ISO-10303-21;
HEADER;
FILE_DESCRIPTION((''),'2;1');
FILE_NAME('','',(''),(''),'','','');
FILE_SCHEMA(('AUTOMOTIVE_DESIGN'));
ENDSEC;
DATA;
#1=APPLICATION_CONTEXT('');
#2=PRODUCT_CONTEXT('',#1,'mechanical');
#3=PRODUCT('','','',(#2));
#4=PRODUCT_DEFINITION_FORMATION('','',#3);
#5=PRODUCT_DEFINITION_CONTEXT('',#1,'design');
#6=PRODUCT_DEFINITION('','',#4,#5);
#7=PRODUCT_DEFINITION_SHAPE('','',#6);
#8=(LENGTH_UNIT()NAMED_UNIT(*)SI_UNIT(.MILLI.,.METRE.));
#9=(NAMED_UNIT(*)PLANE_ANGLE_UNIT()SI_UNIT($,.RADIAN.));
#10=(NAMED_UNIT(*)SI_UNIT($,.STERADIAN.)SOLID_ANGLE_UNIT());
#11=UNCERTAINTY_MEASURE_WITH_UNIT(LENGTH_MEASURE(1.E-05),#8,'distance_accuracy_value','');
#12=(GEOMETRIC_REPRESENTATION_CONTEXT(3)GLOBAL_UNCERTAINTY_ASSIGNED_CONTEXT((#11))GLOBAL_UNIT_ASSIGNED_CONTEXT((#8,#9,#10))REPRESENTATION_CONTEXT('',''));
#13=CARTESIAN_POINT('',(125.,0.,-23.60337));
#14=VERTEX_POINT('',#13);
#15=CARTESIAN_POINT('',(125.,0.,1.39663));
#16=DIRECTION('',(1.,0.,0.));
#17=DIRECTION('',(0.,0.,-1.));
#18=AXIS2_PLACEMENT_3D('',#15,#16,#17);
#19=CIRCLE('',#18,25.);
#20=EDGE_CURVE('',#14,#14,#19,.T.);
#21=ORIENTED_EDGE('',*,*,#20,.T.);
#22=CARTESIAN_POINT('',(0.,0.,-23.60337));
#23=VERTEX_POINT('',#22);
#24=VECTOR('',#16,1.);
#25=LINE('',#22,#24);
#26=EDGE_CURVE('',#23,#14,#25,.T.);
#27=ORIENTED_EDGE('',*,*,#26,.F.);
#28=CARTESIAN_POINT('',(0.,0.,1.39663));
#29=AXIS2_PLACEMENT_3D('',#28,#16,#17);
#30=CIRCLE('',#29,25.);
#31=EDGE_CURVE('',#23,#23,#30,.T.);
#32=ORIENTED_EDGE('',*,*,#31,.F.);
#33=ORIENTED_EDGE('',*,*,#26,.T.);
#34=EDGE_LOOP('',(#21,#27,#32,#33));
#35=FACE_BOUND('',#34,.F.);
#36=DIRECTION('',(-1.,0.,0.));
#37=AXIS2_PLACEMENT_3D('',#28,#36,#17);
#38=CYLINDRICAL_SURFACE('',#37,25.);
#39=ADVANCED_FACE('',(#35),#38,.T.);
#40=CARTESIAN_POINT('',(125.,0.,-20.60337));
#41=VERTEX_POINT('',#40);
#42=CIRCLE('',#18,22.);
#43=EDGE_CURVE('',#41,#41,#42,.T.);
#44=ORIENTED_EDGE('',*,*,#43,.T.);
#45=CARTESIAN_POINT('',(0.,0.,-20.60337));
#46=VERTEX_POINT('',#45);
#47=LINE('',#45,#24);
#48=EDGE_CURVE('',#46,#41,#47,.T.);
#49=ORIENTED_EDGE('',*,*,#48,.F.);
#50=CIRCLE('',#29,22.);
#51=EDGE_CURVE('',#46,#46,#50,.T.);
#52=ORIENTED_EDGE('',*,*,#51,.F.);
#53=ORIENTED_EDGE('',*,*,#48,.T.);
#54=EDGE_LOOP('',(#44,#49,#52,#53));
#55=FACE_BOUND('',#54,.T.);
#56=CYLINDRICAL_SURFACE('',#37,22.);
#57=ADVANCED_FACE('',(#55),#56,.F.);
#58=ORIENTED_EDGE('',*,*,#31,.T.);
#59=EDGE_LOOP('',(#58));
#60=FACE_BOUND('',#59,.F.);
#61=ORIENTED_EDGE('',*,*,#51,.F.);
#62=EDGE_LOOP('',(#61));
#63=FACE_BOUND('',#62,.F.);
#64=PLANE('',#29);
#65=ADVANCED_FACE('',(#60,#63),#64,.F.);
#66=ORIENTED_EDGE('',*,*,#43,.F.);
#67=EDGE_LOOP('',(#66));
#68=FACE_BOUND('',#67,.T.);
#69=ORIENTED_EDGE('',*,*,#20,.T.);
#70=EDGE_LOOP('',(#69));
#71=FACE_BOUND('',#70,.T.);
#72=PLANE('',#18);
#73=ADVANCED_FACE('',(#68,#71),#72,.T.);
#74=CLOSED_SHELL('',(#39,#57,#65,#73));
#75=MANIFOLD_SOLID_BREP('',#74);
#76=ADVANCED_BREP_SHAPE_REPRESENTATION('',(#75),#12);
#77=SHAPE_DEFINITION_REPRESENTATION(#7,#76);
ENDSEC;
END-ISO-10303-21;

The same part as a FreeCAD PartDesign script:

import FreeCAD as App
import Part
import Sketcher
from FreeCAD import Vector

doc = App.newDocument("Part")
params = doc.addObject("Spreadsheet::Sheet", "Params")
for row, (alias, value) in enumerate([
    ("sketch1_diameter", "50 mm"),
    ("sketch1_diameter2", "44 mm"),
    ("pad1_length", "125 mm"),
], start=1):
    params.set(f"A{row}", alias)
    params.set(f"B{row}", "=" + value)
    params.setAlias(f"B{row}", alias)

body = doc.addObject("PartDesign::Body", "Body")

sketch1 = body.newObject("Sketcher::SketchObject", "Sketch")
sketch1.AttachmentSupport = (doc.getObject("YZ_Plane"), [""])
sketch1.MapMode = "FlatFace"
sketch1.addGeometry([
    Part.Circle(Vector(0, 1, 0), Vector(0, 0, 1), 25),
    Part.Circle(Vector(0, 1, 0), Vector(0, 0, 1), 22),
], False)
sketch1.addConstraint([
    Sketcher.Constraint("Coincident", 1, 3, 0, 3),
    Sketcher.Constraint("PointOnObject", 0, 3, -2),
    Sketcher.Constraint("Diameter", 0, 50.0),
    Sketcher.Constraint("Diameter", 1, 44.0),
    Sketcher.Constraint("DistanceY", -1, 1, 0, 3, 1.39663),
])
sketch1.setExpression("Constraints[2]", "Params.sketch1_diameter")
sketch1.setExpression("Constraints[3]", "Params.sketch1_diameter2")
pad1 = body.newObject("PartDesign::Pad", "Pad")
pad1.Profile = sketch1
pad1.setExpression("Length", "Params.pad1_length")

doc.recompute()
